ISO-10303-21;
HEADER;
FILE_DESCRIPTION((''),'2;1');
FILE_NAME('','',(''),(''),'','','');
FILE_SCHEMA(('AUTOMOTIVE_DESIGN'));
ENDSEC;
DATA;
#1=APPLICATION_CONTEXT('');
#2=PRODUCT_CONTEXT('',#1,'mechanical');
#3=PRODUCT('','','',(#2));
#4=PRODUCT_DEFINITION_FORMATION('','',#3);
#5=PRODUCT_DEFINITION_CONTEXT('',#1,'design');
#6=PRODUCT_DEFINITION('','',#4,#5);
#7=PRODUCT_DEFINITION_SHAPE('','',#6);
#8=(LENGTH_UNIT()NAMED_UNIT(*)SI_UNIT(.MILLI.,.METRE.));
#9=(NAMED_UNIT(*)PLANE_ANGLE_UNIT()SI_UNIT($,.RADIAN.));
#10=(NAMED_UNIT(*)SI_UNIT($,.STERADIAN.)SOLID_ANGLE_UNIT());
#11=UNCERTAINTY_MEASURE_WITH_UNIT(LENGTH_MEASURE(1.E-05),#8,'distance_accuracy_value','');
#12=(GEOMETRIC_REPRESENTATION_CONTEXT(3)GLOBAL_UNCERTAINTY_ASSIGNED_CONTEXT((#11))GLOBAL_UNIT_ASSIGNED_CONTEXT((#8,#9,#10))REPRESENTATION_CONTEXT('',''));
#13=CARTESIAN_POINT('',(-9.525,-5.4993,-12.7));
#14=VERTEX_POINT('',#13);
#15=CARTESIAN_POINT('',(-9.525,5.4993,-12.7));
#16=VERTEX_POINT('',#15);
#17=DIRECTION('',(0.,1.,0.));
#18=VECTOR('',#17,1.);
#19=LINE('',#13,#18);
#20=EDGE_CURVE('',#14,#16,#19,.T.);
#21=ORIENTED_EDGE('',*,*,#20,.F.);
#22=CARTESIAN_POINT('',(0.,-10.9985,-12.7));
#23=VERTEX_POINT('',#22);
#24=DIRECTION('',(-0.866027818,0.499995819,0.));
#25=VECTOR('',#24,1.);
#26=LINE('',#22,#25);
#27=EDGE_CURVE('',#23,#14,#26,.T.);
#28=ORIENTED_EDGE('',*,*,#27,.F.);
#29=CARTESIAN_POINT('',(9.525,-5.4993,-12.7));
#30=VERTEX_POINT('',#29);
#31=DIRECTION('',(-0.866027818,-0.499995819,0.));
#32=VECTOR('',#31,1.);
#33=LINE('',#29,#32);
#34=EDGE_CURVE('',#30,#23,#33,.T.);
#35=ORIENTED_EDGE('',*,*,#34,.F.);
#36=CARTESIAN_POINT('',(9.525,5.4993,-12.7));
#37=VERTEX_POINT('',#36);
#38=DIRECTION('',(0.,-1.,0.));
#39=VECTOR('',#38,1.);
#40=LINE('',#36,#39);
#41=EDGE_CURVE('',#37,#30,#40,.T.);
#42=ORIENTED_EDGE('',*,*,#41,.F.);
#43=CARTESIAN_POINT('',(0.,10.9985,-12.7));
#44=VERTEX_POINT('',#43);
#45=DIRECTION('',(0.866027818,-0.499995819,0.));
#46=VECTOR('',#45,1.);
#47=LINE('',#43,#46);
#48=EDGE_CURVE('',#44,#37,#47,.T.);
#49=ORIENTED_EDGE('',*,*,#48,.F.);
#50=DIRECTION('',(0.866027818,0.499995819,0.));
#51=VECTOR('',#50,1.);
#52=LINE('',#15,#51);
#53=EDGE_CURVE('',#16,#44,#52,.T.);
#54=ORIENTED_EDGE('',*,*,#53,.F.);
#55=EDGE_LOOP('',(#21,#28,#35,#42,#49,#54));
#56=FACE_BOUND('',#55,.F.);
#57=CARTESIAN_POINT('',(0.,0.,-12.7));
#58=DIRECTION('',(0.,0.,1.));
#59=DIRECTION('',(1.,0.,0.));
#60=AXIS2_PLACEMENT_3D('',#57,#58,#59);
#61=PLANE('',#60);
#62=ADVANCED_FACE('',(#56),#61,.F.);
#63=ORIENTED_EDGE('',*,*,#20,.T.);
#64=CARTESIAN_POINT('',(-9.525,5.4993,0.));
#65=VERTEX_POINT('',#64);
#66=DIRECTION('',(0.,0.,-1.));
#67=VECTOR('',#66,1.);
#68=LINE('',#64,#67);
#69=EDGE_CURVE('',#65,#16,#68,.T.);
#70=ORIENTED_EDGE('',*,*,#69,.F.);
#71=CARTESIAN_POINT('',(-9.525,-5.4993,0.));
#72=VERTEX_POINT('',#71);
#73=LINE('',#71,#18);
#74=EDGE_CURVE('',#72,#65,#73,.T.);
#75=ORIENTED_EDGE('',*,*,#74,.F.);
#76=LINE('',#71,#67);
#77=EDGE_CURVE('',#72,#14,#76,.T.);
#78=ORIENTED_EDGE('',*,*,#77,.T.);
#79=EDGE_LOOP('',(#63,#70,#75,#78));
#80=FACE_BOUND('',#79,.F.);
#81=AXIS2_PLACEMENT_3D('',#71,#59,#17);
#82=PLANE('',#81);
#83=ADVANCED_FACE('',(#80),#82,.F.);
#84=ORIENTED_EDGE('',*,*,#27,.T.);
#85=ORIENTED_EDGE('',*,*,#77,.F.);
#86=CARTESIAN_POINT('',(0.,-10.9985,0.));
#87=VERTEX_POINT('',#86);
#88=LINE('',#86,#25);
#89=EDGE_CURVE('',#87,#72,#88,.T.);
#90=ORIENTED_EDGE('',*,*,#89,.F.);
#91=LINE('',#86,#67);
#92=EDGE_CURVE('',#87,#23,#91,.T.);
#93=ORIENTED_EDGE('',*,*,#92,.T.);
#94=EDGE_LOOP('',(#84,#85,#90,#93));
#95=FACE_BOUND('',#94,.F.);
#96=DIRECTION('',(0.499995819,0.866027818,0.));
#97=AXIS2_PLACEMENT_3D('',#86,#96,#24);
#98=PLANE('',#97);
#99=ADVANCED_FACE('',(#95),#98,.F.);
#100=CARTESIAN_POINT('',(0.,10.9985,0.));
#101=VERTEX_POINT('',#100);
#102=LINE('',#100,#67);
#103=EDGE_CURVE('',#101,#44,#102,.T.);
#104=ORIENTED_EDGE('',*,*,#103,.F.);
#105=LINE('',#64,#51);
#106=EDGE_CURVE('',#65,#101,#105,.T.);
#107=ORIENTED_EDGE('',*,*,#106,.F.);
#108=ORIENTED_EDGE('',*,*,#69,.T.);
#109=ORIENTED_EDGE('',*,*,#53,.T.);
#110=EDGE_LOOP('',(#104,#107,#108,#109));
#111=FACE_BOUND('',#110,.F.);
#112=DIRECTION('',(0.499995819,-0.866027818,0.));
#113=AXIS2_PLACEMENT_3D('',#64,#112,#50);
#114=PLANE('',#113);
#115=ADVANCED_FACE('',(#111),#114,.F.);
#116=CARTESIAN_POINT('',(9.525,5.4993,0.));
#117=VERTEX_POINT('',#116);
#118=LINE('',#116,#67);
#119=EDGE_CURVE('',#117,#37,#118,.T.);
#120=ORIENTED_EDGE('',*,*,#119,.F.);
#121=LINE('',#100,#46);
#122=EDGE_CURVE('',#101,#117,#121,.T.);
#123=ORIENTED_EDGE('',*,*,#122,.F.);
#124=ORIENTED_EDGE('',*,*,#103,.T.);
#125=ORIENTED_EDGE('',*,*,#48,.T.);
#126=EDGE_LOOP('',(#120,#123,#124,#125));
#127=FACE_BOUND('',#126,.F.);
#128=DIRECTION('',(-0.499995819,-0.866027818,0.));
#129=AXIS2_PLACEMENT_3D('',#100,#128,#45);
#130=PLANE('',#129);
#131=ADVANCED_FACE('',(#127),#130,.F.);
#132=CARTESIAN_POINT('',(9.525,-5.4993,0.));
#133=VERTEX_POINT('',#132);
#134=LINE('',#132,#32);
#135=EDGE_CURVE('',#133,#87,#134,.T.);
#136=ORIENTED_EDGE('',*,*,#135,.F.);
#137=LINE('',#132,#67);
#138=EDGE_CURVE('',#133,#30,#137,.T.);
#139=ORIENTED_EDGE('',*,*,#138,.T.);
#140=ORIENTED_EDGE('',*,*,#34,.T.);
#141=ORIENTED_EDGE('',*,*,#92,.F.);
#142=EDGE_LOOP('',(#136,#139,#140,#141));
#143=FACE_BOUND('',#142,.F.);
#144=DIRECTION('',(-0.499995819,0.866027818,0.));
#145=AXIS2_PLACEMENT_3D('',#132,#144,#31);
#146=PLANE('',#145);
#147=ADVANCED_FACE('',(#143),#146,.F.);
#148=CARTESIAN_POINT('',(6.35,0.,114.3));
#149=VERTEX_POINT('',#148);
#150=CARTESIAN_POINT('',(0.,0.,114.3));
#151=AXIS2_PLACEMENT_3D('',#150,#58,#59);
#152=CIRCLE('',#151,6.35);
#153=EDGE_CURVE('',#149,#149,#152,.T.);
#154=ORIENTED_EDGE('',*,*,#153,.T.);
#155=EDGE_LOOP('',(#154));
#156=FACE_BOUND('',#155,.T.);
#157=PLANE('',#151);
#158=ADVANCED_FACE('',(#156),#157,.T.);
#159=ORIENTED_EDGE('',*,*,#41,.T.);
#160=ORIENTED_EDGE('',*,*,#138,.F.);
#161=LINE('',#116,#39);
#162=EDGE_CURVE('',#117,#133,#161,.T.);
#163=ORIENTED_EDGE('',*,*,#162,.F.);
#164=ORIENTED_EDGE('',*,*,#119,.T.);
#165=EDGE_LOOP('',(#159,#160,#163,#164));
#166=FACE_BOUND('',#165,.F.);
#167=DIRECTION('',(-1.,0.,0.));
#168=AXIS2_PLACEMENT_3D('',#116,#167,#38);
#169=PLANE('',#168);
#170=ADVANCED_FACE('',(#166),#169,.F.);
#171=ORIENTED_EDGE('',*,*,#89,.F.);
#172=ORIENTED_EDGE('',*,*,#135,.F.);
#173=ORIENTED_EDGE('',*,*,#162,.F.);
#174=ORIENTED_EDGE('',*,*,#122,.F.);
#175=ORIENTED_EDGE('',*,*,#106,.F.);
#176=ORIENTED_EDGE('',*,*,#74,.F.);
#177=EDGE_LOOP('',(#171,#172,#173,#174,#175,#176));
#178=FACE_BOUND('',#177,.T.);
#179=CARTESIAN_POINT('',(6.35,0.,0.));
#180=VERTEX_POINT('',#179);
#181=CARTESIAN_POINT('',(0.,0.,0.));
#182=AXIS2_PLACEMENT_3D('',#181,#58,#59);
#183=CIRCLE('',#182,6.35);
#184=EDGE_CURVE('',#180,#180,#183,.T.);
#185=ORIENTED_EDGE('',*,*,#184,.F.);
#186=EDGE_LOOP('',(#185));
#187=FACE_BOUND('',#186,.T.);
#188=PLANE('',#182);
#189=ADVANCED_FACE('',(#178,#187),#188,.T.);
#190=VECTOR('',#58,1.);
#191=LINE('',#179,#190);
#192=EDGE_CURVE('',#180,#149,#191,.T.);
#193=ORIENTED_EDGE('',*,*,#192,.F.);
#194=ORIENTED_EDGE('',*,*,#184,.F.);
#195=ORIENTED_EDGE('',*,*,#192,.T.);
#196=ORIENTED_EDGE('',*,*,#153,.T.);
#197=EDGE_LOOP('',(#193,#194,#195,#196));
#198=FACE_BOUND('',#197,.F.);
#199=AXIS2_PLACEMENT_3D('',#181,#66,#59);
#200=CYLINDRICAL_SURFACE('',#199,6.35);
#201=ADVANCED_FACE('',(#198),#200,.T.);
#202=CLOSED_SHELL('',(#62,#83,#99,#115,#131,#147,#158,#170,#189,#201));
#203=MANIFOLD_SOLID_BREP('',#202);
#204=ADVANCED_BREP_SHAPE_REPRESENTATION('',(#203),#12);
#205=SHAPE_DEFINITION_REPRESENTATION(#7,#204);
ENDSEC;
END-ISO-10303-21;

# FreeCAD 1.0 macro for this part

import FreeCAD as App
import Part
import Sketcher

V = App.Vector
Q = App.Units.Quantity

doc = App.newDocument("Part")
body = doc.addObject("PartDesign::Body", "Body")

sketch1 = body.newObject("Sketcher::SketchObject", "Sketch")
sketch1.AttachmentSupport = (doc.getObject("XY_Plane"), [""])
sketch1.MapMode = "FlatFace"
sketch1.addGeometry([
    Part.LineSegment(V(9.525, 5.4993, 0), V(0, 10.9985, 0)),
    Part.LineSegment(V(0, 10.9985, 0), V(-9.525, 5.4993, 0)),
    Part.LineSegment(V(-9.525, 5.4993, 0), V(-9.525, -5.4993, 0)),
    Part.LineSegment(V(-9.525, -5.4993, 0), V(0, -10.9985, 0)),
    Part.LineSegment(V(0, -10.9985, 0), V(9.525, -5.4993, 0)),
    Part.LineSegment(V(9.525, -5.4993, 0), V(9.525, 5.4993, 0)),
], False)
sketch1.addConstraint([
    Sketcher.Constraint("Coincident", 0, 2, 1, 1),
    Sketcher.Constraint("Coincident", 1, 2, 2, 1),
    Sketcher.Constraint("Coincident", 2, 2, 3, 1),
    Sketcher.Constraint("Coincident", 3, 2, 4, 1),
    Sketcher.Constraint("Coincident", 4, 2, 5, 1),
    Sketcher.Constraint("Coincident", 5, 2, 0, 1),
    Sketcher.Constraint("Vertical", 2),
    Sketcher.Constraint("Vertical", 5),
    Sketcher.Constraint("Symmetric", 0, 2, 3, 2, -1, 1),
    Sketcher.Constraint("Symmetric", 1, 2, 4, 2, -1, 1),
    Sketcher.Constraint("PointOnObject", 0, 2, -2),
    Sketcher.Constraint("Parallel", 0, 3),
    Sketcher.Constraint("Horizontal", 2, 2, 4, 2),
    Sketcher.Constraint("DistanceX", 2, 2, 4, 2, Q("0.75 in")),
    Sketcher.Constraint("Angle", 0, Q("150.0003 deg")),
    Sketcher.Constraint("DistanceY", -1, 1, 0, 2, Q("0.433 in")),
])
pad1 = body.newObject("PartDesign::Pad", "Pad")
pad1.Profile = sketch1
pad1.Length = Q("0.5 in")
pad1.Reversed = True

sketch2 = body.newObject("Sketcher::SketchObject", "Sketch001")
sketch2.AttachmentSupport = (doc.getObject("XY_Plane"), [""])
sketch2.MapMode = "FlatFace"
sketch2.addGeometry(Part.Circle(V(0, 0, 0), V(0, 0, 1), 6.35), False)
sketch2.addConstraint([
    Sketcher.Constraint("Coincident", 0, 3, -1, 1),
    Sketcher.Constraint("Diameter", 0, Q("0.5 in")),
])
pad2 = body.newObject("PartDesign::Pad", "Pad001")
pad2.Profile = sketch2
pad2.Length = Q("4.5 in")

doc.recompute()
